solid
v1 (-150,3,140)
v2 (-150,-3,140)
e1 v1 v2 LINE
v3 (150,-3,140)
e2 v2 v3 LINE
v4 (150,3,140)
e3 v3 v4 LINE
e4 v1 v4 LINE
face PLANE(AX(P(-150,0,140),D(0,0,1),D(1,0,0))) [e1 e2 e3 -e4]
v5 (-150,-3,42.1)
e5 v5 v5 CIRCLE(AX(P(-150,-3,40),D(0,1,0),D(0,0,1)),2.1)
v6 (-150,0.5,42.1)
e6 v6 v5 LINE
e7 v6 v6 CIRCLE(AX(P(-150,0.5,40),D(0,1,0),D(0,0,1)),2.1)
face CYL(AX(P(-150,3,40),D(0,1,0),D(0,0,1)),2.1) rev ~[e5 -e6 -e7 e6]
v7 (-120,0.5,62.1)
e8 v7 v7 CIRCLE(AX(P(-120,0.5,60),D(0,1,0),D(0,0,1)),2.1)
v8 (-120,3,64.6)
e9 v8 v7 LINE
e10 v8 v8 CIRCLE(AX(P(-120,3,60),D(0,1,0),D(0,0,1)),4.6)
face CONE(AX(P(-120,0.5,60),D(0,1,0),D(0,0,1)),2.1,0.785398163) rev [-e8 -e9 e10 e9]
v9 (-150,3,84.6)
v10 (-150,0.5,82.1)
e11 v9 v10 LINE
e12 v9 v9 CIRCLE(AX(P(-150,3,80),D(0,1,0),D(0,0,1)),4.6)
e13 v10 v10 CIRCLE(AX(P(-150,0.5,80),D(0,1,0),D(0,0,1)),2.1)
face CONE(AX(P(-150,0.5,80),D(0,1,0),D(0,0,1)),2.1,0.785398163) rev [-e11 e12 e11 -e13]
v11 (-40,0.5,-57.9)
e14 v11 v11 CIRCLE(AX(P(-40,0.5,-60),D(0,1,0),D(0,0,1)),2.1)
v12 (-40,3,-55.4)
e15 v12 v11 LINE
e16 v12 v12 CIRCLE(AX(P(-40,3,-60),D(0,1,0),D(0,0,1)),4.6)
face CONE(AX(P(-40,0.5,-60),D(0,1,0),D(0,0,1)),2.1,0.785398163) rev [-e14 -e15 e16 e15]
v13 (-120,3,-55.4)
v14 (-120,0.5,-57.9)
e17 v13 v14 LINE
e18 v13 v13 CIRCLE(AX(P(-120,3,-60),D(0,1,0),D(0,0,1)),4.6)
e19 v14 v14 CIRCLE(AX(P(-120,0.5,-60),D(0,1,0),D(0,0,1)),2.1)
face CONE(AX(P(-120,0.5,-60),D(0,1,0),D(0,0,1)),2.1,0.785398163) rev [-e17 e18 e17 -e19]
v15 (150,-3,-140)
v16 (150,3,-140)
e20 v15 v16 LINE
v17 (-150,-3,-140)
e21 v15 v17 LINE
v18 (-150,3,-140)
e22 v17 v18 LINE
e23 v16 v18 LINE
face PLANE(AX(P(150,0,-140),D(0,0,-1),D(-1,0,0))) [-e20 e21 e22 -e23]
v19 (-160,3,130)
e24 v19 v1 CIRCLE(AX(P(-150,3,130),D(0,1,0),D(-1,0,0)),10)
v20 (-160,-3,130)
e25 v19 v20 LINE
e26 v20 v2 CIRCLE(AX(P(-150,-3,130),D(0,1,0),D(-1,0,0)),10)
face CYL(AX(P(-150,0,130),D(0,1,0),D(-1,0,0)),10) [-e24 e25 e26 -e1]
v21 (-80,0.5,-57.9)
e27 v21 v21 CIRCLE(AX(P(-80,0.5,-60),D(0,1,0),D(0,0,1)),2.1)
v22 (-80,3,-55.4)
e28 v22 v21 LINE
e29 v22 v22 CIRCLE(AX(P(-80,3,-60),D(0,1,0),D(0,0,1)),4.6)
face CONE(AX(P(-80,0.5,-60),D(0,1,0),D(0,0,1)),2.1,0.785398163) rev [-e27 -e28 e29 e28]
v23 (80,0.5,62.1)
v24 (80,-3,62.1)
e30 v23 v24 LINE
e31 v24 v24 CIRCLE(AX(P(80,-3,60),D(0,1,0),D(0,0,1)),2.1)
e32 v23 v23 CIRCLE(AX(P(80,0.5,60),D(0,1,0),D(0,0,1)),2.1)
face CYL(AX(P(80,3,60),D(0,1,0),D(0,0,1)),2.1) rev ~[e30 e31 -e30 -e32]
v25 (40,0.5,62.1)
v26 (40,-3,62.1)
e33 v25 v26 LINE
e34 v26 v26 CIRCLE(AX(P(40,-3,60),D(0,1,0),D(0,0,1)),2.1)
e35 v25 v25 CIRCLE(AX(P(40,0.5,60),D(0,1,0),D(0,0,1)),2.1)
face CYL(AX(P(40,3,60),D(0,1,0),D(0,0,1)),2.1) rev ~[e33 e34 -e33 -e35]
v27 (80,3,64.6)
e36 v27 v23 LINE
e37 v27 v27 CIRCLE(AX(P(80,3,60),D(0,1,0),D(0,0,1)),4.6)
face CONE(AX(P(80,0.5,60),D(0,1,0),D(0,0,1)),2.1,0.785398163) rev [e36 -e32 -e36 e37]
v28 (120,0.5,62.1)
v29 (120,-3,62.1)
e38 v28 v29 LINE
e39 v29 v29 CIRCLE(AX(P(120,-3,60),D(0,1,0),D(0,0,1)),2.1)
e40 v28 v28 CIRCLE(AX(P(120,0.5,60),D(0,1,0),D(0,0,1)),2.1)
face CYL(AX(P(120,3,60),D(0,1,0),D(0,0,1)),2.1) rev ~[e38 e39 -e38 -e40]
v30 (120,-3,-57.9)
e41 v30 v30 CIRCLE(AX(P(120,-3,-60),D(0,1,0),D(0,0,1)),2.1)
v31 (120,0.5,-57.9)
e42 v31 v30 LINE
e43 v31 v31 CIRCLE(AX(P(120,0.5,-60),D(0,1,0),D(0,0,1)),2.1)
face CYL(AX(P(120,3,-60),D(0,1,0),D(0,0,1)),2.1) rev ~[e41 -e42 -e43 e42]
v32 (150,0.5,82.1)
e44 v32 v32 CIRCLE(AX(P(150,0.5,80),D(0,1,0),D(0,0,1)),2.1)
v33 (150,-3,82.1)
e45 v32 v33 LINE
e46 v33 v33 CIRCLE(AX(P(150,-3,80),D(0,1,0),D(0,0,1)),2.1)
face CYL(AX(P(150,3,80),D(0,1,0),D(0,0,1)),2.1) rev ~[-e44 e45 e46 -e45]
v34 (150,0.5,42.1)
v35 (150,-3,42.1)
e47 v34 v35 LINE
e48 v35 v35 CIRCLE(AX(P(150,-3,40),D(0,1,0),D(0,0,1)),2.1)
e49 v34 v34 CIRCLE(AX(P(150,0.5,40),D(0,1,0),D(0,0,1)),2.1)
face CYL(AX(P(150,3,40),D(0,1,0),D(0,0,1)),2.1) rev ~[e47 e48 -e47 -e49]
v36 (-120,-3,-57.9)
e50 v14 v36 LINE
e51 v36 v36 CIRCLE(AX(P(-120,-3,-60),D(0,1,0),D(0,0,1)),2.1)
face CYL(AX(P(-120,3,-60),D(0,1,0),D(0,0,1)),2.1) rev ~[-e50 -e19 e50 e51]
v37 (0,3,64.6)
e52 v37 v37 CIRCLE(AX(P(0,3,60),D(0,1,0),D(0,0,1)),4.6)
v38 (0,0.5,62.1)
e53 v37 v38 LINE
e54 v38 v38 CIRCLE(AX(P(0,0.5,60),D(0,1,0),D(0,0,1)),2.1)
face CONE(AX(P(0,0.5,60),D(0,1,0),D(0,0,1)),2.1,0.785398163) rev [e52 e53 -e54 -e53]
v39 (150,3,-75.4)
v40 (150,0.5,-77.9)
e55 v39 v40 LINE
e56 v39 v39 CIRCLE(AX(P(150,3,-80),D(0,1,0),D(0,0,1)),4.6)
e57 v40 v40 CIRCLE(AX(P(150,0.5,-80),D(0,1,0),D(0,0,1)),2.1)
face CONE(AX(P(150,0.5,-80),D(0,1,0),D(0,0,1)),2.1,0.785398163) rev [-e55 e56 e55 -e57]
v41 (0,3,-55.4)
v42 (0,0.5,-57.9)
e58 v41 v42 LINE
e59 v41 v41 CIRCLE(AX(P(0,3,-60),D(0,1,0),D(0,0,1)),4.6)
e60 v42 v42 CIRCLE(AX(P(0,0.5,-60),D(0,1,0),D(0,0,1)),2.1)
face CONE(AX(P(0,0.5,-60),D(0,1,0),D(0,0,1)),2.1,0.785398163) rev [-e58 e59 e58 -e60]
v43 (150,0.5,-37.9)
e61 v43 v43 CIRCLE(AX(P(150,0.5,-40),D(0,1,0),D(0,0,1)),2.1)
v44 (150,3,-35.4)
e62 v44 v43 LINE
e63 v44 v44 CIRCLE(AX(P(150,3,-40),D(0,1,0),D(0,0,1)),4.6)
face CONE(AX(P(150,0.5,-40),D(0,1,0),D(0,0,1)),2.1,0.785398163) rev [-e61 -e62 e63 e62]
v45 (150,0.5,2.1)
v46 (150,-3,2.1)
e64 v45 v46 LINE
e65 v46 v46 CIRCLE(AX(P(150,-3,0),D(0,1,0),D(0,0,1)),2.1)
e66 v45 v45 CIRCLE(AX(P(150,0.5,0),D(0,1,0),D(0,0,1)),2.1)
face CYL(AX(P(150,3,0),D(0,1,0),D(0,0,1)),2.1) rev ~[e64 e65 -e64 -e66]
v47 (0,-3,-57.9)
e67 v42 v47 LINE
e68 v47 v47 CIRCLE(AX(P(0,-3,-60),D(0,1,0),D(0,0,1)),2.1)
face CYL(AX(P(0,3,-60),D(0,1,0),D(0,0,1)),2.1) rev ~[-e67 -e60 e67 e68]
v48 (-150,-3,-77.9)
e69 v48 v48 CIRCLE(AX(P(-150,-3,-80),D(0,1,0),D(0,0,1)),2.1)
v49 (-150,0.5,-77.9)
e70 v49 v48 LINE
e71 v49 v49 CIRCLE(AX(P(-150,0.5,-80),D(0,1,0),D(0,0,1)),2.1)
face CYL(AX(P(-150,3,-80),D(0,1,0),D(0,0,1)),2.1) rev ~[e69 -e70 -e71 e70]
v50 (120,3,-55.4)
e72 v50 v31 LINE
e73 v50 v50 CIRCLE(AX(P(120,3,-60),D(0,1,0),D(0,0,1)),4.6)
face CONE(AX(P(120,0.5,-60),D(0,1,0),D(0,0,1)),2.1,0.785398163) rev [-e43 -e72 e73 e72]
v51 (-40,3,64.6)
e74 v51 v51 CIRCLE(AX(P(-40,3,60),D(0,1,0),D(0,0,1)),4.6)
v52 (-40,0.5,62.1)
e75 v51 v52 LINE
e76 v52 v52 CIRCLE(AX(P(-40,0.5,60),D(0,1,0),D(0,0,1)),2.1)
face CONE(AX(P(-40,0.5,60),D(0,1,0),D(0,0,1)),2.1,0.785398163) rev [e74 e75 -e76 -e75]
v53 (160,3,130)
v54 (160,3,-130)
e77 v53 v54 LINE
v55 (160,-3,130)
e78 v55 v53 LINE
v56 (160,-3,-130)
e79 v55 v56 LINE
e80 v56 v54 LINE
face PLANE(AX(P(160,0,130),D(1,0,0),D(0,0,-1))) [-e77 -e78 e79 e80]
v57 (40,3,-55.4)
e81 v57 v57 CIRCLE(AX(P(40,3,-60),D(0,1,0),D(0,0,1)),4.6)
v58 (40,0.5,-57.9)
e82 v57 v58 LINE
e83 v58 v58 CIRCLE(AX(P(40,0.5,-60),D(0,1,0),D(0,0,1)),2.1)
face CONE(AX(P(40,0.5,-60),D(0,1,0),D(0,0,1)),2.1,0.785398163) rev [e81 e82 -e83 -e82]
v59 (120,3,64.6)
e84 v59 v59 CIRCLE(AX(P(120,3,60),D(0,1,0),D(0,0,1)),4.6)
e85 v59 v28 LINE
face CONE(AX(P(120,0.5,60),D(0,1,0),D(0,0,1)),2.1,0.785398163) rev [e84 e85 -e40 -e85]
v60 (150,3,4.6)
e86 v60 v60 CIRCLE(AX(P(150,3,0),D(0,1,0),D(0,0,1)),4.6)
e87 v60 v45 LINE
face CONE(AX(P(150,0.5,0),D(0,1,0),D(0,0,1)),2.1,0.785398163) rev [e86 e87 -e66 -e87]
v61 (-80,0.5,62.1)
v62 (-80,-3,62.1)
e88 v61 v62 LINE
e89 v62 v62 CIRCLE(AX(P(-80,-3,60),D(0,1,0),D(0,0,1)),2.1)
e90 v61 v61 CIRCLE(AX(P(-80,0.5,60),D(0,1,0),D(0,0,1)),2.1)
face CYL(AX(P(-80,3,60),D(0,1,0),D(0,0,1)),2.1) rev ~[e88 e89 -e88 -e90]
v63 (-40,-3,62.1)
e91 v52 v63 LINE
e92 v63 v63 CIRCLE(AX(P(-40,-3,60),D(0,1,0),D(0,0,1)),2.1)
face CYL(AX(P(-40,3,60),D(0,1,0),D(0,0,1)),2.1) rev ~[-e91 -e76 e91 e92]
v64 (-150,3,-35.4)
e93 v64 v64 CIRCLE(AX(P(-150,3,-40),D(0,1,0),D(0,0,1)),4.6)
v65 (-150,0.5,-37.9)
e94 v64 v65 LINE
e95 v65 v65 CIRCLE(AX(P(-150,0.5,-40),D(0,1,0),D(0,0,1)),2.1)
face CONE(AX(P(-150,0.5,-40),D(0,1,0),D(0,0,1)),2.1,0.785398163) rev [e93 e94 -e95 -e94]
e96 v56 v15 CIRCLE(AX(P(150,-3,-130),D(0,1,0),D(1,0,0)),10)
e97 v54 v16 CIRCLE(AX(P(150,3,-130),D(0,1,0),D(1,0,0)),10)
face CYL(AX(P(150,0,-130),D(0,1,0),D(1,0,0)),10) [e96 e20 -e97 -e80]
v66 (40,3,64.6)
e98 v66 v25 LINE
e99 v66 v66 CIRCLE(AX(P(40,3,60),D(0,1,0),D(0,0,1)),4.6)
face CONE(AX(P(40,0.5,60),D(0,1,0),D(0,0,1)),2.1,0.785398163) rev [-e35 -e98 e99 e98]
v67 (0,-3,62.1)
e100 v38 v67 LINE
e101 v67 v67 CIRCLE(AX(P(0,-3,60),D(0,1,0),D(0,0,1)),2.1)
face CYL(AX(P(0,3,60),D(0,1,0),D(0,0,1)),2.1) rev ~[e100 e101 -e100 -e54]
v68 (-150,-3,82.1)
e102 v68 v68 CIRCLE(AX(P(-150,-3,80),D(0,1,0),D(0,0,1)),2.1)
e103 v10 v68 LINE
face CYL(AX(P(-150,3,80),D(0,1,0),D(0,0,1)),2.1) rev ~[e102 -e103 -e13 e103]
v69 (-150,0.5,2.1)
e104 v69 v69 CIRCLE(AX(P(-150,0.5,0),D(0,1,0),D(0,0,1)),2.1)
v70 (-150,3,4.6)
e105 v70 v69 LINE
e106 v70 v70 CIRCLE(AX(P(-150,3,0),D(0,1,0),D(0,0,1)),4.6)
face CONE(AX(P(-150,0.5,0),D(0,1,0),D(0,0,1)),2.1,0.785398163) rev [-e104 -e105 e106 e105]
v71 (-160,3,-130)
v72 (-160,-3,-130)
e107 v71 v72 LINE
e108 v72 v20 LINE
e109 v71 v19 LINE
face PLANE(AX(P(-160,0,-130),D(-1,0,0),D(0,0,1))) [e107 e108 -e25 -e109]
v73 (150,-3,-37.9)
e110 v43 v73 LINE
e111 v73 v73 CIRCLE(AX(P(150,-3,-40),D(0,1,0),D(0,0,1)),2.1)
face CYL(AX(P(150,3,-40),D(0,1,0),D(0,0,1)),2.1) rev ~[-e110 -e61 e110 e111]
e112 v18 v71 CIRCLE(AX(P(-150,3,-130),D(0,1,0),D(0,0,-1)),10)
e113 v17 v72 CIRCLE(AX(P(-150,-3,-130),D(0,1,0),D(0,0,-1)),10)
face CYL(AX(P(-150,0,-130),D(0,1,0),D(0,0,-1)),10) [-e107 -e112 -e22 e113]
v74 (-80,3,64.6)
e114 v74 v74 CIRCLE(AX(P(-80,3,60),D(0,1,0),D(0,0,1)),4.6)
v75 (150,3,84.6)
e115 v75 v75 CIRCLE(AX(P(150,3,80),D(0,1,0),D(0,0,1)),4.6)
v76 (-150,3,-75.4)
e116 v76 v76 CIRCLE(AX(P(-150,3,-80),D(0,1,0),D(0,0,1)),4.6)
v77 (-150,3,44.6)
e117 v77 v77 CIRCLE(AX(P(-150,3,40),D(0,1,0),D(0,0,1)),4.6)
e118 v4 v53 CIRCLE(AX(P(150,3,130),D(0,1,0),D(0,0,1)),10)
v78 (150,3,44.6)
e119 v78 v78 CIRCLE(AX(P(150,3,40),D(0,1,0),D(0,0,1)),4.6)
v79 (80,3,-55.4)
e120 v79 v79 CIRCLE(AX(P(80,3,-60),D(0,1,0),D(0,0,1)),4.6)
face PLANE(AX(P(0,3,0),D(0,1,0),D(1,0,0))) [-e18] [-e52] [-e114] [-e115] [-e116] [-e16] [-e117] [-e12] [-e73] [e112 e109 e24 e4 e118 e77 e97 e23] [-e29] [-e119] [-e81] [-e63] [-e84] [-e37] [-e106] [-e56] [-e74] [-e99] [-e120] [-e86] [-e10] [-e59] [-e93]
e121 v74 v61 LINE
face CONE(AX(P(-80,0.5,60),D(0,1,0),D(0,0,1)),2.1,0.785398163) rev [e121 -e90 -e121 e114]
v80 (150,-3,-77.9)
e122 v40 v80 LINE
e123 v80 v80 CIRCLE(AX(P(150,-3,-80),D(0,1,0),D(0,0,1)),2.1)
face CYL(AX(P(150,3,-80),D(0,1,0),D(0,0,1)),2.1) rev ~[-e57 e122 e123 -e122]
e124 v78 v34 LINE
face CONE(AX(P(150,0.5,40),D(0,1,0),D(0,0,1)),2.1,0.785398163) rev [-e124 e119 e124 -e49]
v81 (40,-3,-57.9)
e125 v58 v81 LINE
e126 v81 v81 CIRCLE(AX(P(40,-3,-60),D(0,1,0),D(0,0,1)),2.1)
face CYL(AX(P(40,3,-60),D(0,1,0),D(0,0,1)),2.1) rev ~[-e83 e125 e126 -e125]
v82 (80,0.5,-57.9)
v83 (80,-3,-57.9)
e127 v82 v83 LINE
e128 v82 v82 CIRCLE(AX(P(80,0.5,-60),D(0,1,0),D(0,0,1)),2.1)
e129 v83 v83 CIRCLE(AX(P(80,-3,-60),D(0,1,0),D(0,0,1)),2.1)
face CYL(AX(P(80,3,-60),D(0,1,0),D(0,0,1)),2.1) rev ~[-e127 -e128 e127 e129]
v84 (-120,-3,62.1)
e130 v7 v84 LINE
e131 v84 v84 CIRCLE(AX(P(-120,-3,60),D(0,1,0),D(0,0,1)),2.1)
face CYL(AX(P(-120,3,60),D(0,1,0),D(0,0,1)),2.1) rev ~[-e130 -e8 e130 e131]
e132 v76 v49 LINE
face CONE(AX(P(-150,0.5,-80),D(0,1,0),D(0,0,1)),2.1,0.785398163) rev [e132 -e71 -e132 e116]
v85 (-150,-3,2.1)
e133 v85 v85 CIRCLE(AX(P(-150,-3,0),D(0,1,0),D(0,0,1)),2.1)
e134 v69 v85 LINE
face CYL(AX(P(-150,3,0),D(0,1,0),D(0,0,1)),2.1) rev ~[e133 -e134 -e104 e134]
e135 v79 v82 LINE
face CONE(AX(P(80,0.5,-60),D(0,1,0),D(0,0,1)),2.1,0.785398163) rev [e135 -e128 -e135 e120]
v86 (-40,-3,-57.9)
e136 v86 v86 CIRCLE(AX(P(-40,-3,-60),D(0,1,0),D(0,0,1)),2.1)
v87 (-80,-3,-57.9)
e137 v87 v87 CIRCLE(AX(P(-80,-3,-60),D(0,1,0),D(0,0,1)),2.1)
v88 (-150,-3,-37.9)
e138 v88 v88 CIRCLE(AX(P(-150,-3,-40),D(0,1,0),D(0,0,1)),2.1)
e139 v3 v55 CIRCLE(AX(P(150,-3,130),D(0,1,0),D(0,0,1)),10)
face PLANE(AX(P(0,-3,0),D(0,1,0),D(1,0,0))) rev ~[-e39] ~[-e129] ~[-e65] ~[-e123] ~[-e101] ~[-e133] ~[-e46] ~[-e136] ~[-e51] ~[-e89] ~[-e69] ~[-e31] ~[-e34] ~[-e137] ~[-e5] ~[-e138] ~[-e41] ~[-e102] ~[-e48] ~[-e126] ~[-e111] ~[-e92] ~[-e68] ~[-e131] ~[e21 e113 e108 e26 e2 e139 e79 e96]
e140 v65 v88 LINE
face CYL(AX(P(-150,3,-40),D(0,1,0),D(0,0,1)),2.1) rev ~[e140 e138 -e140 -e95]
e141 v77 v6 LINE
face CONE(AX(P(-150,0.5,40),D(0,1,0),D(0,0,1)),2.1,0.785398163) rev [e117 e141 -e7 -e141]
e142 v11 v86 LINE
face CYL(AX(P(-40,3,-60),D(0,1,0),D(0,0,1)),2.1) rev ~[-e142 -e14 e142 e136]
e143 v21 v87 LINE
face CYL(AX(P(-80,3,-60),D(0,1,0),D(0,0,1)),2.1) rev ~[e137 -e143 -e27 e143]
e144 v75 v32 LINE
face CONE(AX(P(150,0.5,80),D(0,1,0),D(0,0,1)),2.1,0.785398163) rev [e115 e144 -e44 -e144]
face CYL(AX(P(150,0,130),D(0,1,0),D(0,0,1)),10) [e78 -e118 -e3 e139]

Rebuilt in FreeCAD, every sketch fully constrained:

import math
import FreeCAD as App
import Part
import Sketcher

V = App.Vector
Q = App.Units.Quantity


def edges_at(feature, points):
    """Names of the edges that pass closest to the given points."""
    edges = feature.Shape.Edges
    near = lambda p: min(range(len(edges)), key=lambda i: edges[i].distToShape(Part.Vertex(*p))[0])
    return sorted({f"Edge{near(p) + 1}" for p in points})

doc = App.newDocument("Part")
body = doc.addObject("PartDesign::Body", "Body")

# Sketch on XZ plane
sketch1 = body.newObject("Sketcher::SketchObject", "Sketch")
sketch1.AttachmentSupport = (doc.getObject("XZ_Plane"), [""])
sketch1.MapMode = "FlatFace"
sketch1.addGeometry([
    Part.LineSegment(V(-150, 140, 0), V(150, 140, 0)),  # 0
    Part.ArcOfCircle(Part.Circle(V(150, 130, 0), V(0, 0, 1), 10), math.radians(0), math.radians(90)),  # 1
    Part.LineSegment(V(160, 130, 0), V(160, -130, 0)),  # 2
    Part.ArcOfCircle(Part.Circle(V(150, -130, 0), V(0, 0, 1), 10), math.radians(-90), math.radians(0)),  # 3
    Part.LineSegment(V(150, -140, 0), V(-150, -140, 0)),  # 4
    Part.ArcOfCircle(Part.Circle(V(-150, -130, 0), V(0, 0, 1), 10), math.radians(180), math.radians(270)),  # 5
    Part.LineSegment(V(-160, -130, 0), V(-160, 130, 0)),  # 6
    Part.ArcOfCircle(Part.Circle(V(-150, 130, 0), V(0, 0, 1), 10), math.radians(90), math.radians(180)),  # 7
], False)
sketch1.addConstraint([
    Sketcher.Constraint("Tangent", 0, 2, 1, 2),
    Sketcher.Constraint("Tangent", 1, 1, 2, 1),
    Sketcher.Constraint("Tangent", 2, 2, 3, 2),
    Sketcher.Constraint("Tangent", 3, 1, 4, 1),
    Sketcher.Constraint("Tangent", 4, 2, 5, 2),
    Sketcher.Constraint("Tangent", 5, 1, 6, 1),
    Sketcher.Constraint("Tangent", 6, 2, 7, 2),
    Sketcher.Constraint("Tangent", 7, 1, 0, 1),
    Sketcher.Constraint("Horizontal", 0),
    Sketcher.Constraint("Vertical", 2),
    Sketcher.Constraint("Horizontal", 4),
    Sketcher.Constraint("Vertical", 6),
    Sketcher.Constraint("Equal", 1, 3),
    Sketcher.Constraint("Equal", 3, 5),
    Sketcher.Constraint("Equal", 5, 7),
    Sketcher.Constraint("Symmetric", 1, 3, 5, 3, -1, 1),
    Sketcher.Constraint("Radius", 1, Q("10 mm")),
    Sketcher.Constraint("DistanceX", 0, 1, 0, 2, Q("300 mm")),
    Sketcher.Constraint("DistanceY", 2, 2, 2, 1, Q("260 mm")),
])
pad1 = body.newObject("PartDesign::Pad", "Pad")
pad1.Profile = sketch1
pad1.Length = 6
pad1.Midplane = True

# Sketch on XZ plane
sketch2 = body.newObject("Sketcher::SketchObject", "Sketch001")
sketch2.AttachmentSupport = (doc.getObject("XZ_Plane"), [""])
sketch2.MapMode = "FlatFace"
sketch2.AttachmentOffset = App.Placement(V(0, 0, -3), App.Rotation())
sketch2.addGeometry([
    Part.Circle(V(0, -60, 0), V(0, 0, 1), 2.1),  # 0
    Part.Circle(V(40, -60, 0), V(0, 0, 1), 2.1),  # 1
    Part.Circle(V(80, -60, 0), V(0, 0, 1), 2.1),  # 2
    Part.Circle(V(120, -60, 0), V(0, 0, 1), 2.1),  # 3
    Part.Circle(V(-120, -60, 0), V(0, 0, 1), 2.1),  # 4
    Part.Circle(V(-80, -60, 0), V(0, 0, 1), 2.1),  # 5
    Part.Circle(V(-40, -60, 0), V(0, 0, 1), 2.1),  # 6
    Part.Circle(V(-40, 60, 0), V(0, 0, 1), 2.1),  # 7
    Part.Circle(V(-80, 60, 0), V(0, 0, 1), 2.1),  # 8
    Part.Circle(V(-120, 60, 0), V(0, 0, 1), 2.1),  # 9
    Part.Circle(V(120, 60, 0), V(0, 0, 1), 2.1),  # 10
    Part.Circle(V(80, 60, 0), V(0, 0, 1), 2.1),  # 11
    Part.Circle(V(40, 60, 0), V(0, 0, 1), 2.1),  # 12
    Part.Circle(V(0, 60, 0), V(0, 0, 1), 2.1),  # 13
    Part.Circle(V(-150, 0, 0), V(0, 0, 1), 2.1),  # 14
    Part.Circle(V(-150, 40, 0), V(0, 0, 1), 2.1),  # 15
    Part.Circle(V(-150, 80, 0), V(0, 0, 1), 2.1),  # 16
    Part.Circle(V(-150, -80, 0), V(0, 0, 1), 2.1),  # 17
    Part.Circle(V(-150, -40, 0), V(0, 0, 1), 2.1),  # 18
    Part.Circle(V(150, -40, 0), V(0, 0, 1), 2.1),  # 19
    Part.Circle(V(150, -80, 0), V(0, 0, 1), 2.1),  # 20
    Part.Circle(V(150, 80, 0), V(0, 0, 1), 2.1),  # 21
    Part.Circle(V(150, 40, 0), V(0, 0, 1), 2.1),  # 22
    Part.Circle(V(150, 0, 0), V(0, 0, 1), 2.1),  # 23
], False)
sketch2.addConstraint([
    Sketcher.Constraint("Equal", 0, 1),
    Sketcher.Constraint("Equal", 1, 2),
    Sketcher.Constraint("Equal", 2, 3),
    Sketcher.Constraint("Equal", 3, 4),
    Sketcher.Constraint("Equal", 4, 5),
    Sketcher.Constraint("Equal", 5, 6),
    Sketcher.Constraint("Equal", 6, 7),
    Sketcher.Constraint("Equal", 7, 8),
    Sketcher.Constraint("Equal", 8, 9),
    Sketcher.Constraint("Equal", 9, 10),
    Sketcher.Constraint("Equal", 10, 11),
    Sketcher.Constraint("Equal", 11, 12),
    Sketcher.Constraint("Equal", 12, 13),
    Sketcher.Constraint("Equal", 13, 14),
    Sketcher.Constraint("Equal", 14, 15),
    Sketcher.Constraint("Equal", 15, 16),
    Sketcher.Constraint("Equal", 16, 17),
    Sketcher.Constraint("Equal", 17, 18),
    Sketcher.Constraint("Equal", 18, 19),
    Sketcher.Constraint("Equal", 19, 20),
    Sketcher.Constraint("Equal", 20, 21),
    Sketcher.Constraint("Equal", 21, 22),
    Sketcher.Constraint("Equal", 22, 23),
    Sketcher.Constraint("Symmetric", 1, 3, 7, 3, -1, 1),
    Sketcher.Constraint("Symmetric", 2, 3, 8, 3, -1, 1),
    Sketcher.Constraint("Symmetric", 3, 3, 9, 3, -1, 1),
    Sketcher.Constraint("Symmetric", 4, 3, 10, 3, -1, 1),
    Sketcher.Constraint("Symmetric", 5, 3, 11, 3, -1, 1),
    Sketcher.Constraint("Symmetric", 6, 3, 12, 3, -1, 1),
    Sketcher.Constraint("Symmetric", 0, 3, 13, 3, -1, 1),
    Sketcher.Constraint("Symmetric", 15, 3, 19, 3, -1, 1),
    Sketcher.Constraint("Symmetric", 16, 3, 20, 3, -1, 1),
    Sketcher.Constraint("Symmetric", 17, 3, 21, 3, -1, 1),
    Sketcher.Constraint("Symmetric", 18, 3, 22, 3, -1, 1),
    Sketcher.Constraint("Symmetric", 14, 3, 23, 3, -1, 1),
    Sketcher.Constraint("Symmetric", 3, 3, 4, 3, -2),
    Sketcher.Constraint("Symmetric", 2, 3, 5, 3, -2),
    Sketcher.Constraint("Symmetric", 1, 3, 6, 3, -2),
    Sketcher.Constraint("Symmetric", 18, 3, 19, 3, -2),
    Sketcher.Constraint("Symmetric", 17, 3, 20, 3, -2),
    Sketcher.Constraint("PointOnObject", 0, 3, -2),
    Sketcher.Constraint("PointOnObject", 14, 3, -1),
    Sketcher.Constraint("Horizontal", 0, 3, 1, 3),
    Sketcher.Constraint("Horizontal", 1, 3, 2, 3),
    Sketcher.Constraint("Horizontal", 2, 3, 3, 3),
    Sketcher.Constraint("Vertical", 14, 3, 15, 3),
    Sketcher.Constraint("Vertical", 15, 3, 16, 3),
    Sketcher.Constraint("Diameter", 0, Q("4.2 mm")),
    Sketcher.Constraint("DistanceY", 0, 3, -1, 1, Q("60 mm")),
    Sketcher.Constraint("DistanceX", -1, 1, 1, 3, Q("40 mm")),
    Sketcher.Constraint("DistanceX", -1, 1, 2, 3, Q("80 mm")),
    Sketcher.Constraint("DistanceX", -1, 1, 3, 3, Q("120 mm")),
    Sketcher.Constraint("DistanceX", 14, 3, -1, 1, Q("150 mm")),
    Sketcher.Constraint("DistanceY", -1, 1, 15, 3, Q("40 mm")),
    Sketcher.Constraint("DistanceY", -1, 1, 16, 3, Q("80 mm")),
])
pocket1 = body.newObject("PartDesign::Pocket", "Pocket")
pocket1.Profile = sketch2
pocket1.Length = 240
pocket1.Reversed = True
doc.recompute()

chamfer = body.newObject("PartDesign::Chamfer", "Chamfer")
chamfer.Base = (pocket1, edges_at(pocket1, [
    (-80, 3, -62.1),
    (-40, 3, -62.1),
    (-40, 3, 57.9),
    (-150, 3, -82.1),
    (-150, 3, -42.1),
    (150, 3, -42.1),
    (150, 3, -82.1),
    (150, 3, 77.9),
    (150, 3, 37.9),
    (150, 3, -2.1),
    (0, 3, -62.1),
    (-80, 3, 57.9),
    (-120, 3, 57.9),
    (120, 3, 57.9),
    (80, 3, 57.9),
    (40, 3, 57.9),
    (0, 3, 57.9),
    (-150, 3, 37.9),
    (-150, 3, 77.9),
    (-150, 3, -2.1),
    (120, 3, -62.1),
    (80, 3, -62.1),
    (40, 3, -62.1),
    (-120, 3, -62.1),
]))
chamfer.Size = 2.5

doc.recompute()
